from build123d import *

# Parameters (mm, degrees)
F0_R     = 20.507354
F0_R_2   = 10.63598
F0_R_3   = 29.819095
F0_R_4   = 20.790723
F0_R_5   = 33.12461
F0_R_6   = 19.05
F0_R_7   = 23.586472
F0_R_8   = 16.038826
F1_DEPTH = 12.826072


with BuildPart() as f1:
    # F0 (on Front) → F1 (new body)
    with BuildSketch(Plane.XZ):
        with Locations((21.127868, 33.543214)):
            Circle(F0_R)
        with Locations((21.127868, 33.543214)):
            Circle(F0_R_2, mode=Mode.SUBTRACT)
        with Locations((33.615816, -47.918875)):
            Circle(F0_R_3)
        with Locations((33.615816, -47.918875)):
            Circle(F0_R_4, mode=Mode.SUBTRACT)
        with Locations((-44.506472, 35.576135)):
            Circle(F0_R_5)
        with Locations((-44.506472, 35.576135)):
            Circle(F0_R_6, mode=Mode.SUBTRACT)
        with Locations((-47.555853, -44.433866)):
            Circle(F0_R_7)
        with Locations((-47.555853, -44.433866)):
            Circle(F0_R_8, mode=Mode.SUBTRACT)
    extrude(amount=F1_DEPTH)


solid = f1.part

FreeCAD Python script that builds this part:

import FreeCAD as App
import Part
import Sketcher
Q = App.Units.Quantity

doc = App.newDocument("Part")
body = doc.addObject("PartDesign::Body", "Body")
body.AllowCompound = True

# Sketch on XZ plane
sketch1 = body.newObject("Sketcher::SketchObject", "Sketch")
sketch1.AttachmentSupport = (doc.getObject("XZ_Plane"), [""])
sketch1.MapMode = "FlatFace"
sketch1.addGeometry([
    Part.Circle(App.Vector(21.127868, 33.543214, 0), App.Vector(0, 0, 1), 20.507354),  # 0
    Part.Circle(App.Vector(21.127868, 33.543214, 0), App.Vector(0, 0, 1), 10.63598),  # 1
    Part.Circle(App.Vector(33.615816, -47.918875, 0), App.Vector(0, 0, 1), 29.819095),  # 2
    Part.Circle(App.Vector(33.615816, -47.918875, 0), App.Vector(0, 0, 1), 20.790723),  # 3
    Part.Circle(App.Vector(-44.506472, 35.576135, 0), App.Vector(0, 0, 1), 33.12461),  # 4
    Part.Circle(App.Vector(-44.506472, 35.576135, 0), App.Vector(0, 0, 1), 19.05),  # 5
    Part.Circle(App.Vector(-47.555853, -44.433866, 0), App.Vector(0, 0, 1), 23.586472),  # 6
    Part.Circle(App.Vector(-47.555853, -44.433866, 0), App.Vector(0, 0, 1), 16.038826),  # 7
], False)
sketch1.addConstraint([
    Sketcher.Constraint("Coincident", 1, 3, 0, 3),
    Sketcher.Constraint("Coincident", 3, 3, 2, 3),
    Sketcher.Constraint("Coincident", 5, 3, 4, 3),
    Sketcher.Constraint("Coincident", 7, 3, 6, 3),
    Sketcher.Constraint("Diameter", 5, Q("1.5 in")),
    Sketcher.Constraint("DistanceY", 6, 3, 4, 3, Q("3.15 in")),
    Sketcher.Constraint("Diameter", 1, Q("21.27196 mm")),
    Sketcher.Constraint("Diameter", 2, Q("59.63819 mm")),
    Sketcher.Constraint("Diameter", 4, Q("66.24922 mm")),
    Sketcher.Constraint("Diameter", 0, Q("41.014708 mm")),
    Sketcher.Constraint("Diameter", 3, Q("41.581446 mm")),
    Sketcher.Constraint("Diameter", 6, Q("47.172944 mm")),
    Sketcher.Constraint("Diameter", 7, Q("32.077652 mm")),
    Sketcher.Constraint("DistanceX", 0, 3, 2, 3, Q("12.487948 mm")),
    Sketcher.Constraint("DistanceY", 2, 3, 0, 3, Q("81.462089 mm")),
    Sketcher.Constraint("DistanceX", 4, 3, 0, 3, Q("65.63434 mm")),
    Sketcher.Constraint("DistanceY", 0, 3, 4, 3, Q("2.032921 mm")),
    Sketcher.Constraint("DistanceX", 6, 3, 4, 3, Q("3.049381 mm")),
    Sketcher.Constraint("DistanceX", -1, 1, 0, 3, Q("21.127868 mm")),
    Sketcher.Constraint("DistanceY", -1, 1, 0, 3, Q("33.543214 mm")),
])
pad1 = body.newObject("PartDesign::Pad", "Pad")
pad1.Profile = sketch1
pad1.Length = 12.826072

doc.recompute()
